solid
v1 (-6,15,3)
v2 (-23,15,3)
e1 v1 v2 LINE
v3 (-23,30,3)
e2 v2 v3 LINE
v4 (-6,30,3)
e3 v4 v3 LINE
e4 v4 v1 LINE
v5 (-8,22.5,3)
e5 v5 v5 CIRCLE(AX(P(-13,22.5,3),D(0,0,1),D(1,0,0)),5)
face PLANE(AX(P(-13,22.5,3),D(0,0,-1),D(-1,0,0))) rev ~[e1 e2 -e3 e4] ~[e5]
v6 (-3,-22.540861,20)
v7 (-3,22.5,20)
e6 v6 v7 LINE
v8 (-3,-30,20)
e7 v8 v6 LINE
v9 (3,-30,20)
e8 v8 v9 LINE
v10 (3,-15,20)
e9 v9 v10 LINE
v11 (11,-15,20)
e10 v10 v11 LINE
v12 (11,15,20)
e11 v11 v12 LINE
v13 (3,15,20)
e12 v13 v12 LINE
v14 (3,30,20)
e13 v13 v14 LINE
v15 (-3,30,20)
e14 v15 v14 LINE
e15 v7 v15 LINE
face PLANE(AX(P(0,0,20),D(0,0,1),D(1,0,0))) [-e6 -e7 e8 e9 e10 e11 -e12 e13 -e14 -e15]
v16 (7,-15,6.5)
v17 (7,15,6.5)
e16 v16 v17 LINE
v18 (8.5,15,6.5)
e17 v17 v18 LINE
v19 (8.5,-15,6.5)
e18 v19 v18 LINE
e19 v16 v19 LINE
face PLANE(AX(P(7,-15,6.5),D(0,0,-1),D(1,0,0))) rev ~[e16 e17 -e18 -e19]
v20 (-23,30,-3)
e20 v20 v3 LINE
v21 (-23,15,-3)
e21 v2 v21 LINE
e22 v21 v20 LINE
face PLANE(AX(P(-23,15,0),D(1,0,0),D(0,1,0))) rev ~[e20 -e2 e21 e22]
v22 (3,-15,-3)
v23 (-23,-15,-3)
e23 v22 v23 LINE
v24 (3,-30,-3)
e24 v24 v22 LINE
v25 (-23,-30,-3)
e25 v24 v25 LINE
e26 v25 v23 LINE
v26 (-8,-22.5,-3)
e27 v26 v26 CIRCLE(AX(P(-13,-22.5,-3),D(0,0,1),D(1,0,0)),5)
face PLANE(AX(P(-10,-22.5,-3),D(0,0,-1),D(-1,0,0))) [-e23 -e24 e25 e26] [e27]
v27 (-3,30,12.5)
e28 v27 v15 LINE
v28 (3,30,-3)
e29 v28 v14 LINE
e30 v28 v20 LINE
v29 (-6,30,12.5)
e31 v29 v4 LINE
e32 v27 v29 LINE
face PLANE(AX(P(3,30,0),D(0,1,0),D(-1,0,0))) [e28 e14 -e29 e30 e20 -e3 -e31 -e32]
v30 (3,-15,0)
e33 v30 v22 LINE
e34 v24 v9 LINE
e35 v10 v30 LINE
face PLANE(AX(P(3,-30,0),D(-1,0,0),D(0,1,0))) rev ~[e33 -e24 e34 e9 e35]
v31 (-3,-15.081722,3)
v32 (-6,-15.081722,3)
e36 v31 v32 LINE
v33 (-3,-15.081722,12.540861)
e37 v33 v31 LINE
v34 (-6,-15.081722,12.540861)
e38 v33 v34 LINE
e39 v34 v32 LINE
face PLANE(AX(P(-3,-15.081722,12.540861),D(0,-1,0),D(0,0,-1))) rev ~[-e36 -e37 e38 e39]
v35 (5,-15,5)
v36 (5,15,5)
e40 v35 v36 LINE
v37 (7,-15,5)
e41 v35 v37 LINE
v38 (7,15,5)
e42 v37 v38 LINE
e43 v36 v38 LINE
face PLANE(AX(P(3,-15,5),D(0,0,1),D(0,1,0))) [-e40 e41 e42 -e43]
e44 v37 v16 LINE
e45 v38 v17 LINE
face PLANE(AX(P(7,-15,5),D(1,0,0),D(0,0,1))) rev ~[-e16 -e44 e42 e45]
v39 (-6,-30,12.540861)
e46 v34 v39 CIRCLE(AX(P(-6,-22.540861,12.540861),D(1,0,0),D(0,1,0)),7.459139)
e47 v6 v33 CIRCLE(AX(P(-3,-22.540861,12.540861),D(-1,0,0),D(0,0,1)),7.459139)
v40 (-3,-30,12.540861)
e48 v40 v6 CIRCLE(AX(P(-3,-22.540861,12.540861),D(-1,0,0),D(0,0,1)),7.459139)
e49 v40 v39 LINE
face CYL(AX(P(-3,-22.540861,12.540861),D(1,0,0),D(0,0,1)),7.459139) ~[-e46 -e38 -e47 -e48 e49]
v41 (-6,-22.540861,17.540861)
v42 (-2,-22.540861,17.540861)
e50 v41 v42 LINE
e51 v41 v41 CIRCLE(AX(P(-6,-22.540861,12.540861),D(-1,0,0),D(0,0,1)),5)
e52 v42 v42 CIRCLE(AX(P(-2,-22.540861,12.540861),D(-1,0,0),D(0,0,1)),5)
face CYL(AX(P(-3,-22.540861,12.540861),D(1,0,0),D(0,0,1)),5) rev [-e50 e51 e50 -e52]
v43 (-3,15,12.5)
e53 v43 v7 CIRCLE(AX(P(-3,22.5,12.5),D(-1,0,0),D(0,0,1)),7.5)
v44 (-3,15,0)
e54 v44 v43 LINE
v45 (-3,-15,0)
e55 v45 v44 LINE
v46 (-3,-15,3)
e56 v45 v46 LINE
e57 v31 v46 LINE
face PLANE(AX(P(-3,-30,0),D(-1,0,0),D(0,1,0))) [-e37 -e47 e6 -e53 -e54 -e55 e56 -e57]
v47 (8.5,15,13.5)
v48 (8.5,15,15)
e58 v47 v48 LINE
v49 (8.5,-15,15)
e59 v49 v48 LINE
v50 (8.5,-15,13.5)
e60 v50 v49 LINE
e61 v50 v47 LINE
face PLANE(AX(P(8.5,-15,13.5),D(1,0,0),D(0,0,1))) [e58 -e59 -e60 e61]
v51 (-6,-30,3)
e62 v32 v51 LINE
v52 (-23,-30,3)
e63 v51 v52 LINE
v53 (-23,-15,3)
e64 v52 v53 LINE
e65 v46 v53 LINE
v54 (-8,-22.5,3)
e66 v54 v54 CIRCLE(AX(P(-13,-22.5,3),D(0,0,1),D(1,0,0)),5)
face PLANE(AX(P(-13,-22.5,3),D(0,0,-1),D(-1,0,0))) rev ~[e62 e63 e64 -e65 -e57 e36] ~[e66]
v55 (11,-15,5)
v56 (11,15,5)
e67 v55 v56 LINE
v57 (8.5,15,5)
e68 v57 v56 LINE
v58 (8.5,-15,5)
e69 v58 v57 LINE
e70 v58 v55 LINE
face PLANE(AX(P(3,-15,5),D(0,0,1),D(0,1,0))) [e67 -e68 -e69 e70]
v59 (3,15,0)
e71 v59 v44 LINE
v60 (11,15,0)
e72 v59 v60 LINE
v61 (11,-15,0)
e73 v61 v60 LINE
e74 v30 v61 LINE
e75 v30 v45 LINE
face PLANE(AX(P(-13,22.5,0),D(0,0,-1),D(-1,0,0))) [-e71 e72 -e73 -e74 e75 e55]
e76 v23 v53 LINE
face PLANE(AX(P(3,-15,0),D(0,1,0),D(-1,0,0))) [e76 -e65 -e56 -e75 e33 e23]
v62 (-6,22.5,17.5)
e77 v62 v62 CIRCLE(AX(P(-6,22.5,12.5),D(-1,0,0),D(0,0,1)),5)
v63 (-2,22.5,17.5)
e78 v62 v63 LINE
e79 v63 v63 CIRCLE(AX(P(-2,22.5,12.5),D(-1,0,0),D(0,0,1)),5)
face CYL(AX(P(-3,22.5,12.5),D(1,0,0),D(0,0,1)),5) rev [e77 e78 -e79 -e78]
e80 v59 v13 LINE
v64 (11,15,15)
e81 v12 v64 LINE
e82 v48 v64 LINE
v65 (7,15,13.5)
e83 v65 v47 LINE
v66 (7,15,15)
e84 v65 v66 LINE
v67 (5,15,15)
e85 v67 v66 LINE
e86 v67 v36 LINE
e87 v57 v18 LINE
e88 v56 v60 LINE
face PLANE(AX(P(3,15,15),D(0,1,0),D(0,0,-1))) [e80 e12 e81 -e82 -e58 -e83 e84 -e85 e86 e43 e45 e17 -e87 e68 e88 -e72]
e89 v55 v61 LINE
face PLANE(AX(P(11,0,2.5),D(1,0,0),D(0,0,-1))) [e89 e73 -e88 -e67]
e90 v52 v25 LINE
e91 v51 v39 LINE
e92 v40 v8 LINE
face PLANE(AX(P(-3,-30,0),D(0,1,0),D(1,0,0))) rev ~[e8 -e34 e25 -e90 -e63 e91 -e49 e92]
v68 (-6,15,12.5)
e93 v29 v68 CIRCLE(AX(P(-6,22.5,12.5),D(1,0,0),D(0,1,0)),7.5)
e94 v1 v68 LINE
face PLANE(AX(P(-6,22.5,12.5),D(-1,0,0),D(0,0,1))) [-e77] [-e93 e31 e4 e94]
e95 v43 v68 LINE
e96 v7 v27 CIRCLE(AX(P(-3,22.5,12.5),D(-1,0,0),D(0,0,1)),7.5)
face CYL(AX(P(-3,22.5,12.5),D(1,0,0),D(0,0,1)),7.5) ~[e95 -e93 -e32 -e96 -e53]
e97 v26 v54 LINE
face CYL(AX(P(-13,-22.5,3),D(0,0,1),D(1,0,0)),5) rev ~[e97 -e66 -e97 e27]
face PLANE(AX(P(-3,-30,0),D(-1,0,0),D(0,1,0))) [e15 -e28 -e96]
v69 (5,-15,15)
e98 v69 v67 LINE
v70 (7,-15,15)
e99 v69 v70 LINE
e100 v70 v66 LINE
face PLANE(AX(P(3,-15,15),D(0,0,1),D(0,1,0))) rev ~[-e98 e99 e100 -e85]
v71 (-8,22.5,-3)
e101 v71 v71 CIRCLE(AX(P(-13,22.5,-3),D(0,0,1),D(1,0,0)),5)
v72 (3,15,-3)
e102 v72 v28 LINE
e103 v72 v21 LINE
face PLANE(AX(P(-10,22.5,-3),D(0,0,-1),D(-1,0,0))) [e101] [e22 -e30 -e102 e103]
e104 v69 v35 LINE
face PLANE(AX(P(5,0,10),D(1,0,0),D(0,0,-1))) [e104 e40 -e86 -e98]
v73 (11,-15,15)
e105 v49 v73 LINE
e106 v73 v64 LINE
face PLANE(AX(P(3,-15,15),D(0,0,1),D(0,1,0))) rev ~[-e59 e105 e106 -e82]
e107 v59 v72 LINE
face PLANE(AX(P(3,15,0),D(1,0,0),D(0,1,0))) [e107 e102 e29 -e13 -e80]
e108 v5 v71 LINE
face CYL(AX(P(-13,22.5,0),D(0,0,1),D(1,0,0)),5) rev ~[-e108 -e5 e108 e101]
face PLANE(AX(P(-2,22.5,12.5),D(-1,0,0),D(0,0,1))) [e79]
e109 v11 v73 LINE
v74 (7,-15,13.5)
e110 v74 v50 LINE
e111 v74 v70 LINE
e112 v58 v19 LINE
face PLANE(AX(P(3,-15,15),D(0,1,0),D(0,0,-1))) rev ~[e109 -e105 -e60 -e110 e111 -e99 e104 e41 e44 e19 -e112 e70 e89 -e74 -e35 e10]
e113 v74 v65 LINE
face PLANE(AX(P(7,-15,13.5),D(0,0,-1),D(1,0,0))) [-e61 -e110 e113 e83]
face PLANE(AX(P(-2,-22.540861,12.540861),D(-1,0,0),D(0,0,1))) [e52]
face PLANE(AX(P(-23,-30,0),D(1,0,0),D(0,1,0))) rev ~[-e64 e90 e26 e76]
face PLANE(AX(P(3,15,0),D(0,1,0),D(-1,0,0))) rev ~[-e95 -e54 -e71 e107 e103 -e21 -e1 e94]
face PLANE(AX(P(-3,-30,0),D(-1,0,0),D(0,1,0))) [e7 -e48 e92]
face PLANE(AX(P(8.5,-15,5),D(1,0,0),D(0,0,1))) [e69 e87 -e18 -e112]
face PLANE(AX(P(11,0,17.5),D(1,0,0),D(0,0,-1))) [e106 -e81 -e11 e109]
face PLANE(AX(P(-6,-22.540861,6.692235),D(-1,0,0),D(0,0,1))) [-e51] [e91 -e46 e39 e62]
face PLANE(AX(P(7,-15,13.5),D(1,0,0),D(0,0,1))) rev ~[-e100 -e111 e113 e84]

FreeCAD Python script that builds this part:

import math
import FreeCAD as App
import Part
import Sketcher


def add_polygon(sketch, points):
    """Adds a closed chain of lines whose ends are joined by coincident constraints."""
    first, n = sketch.GeometryCount, len(points)
    for a, b in zip(points, points[1:] + points[:1]):
        sketch.addGeometry(Part.LineSegment(App.Vector(*a, 0), App.Vector(*b, 0)), False)
    for i in range(n):
        sketch.addConstraint(Sketcher.Constraint("Coincident", first + i, 2, first + (i + 1) % n, 1))

doc = App.newDocument("Part")
body = doc.addObject("PartDesign::Body", "Body")

sketch1 = body.newObject("Sketcher::SketchObject", "Sketch")
sketch1.AttachmentSupport = (doc.getObject("XY_Plane"), [""])
sketch1.MapMode = "FlatFace"
add_polygon(sketch1, [(-3, 30), (-3, -30), (3, -30), (3, 30)])
sketch1.addConstraint(Sketcher.Constraint("Vertical", 0))
sketch1.addConstraint(Sketcher.Constraint("Horizontal", 1))
sketch1.addConstraint(Sketcher.Constraint("Vertical", 2))
sketch1.addConstraint(Sketcher.Constraint("Horizontal", 3))
sketch1.addConstraint(Sketcher.Constraint("Symmetric", 0, 2, 2, 2, -1, 1))
sketch1.addConstraint(Sketcher.Constraint("DistanceX", 1, 1, 1, 2, 6.0))
sketch1.addConstraint(Sketcher.Constraint("DistanceY", 0, 2, 0, 1, 60.0))
pad1 = body.newObject("PartDesign::Pad", "Pad")
pad1.Profile = sketch1
pad1.Length = 20

sketch2 = body.newObject("Sketcher::SketchObject", "Sketch001")
sketch2.AttachmentSupport = (doc.getObject("YZ_Plane"), [""])
sketch2.MapMode = "FlatFace"
sketch2.AttachmentOffset = App.Placement(App.Vector(0, 0, 3), App.Rotation())
add_polygon(sketch2, [(15, 20), (-15, 20), (-15, 15), (15, 15)])
add_polygon(sketch2, [(15, 5), (-15, 5), (-15, 0), (15, 0)])
sketch2.addConstraint(Sketcher.Constraint("Horizontal", 0))
sketch2.addConstraint(Sketcher.Constraint("Vertical", 1))
sketch2.addConstraint(Sketcher.Constraint("Horizontal", 2))
sketch2.addConstraint(Sketcher.Constraint("Vertical", 3))
sketch2.addConstraint(Sketcher.Constraint("Horizontal", 4))
sketch2.addConstraint(Sketcher.Constraint("Vertical", 5))
sketch2.addConstraint(Sketcher.Constraint("Horizontal", 6))
sketch2.addConstraint(Sketcher.Constraint("Vertical", 7))
sketch2.addConstraint(Sketcher.Constraint("Symmetric", 5, 2, 6, 2, -1, 1))
sketch2.addConstraint(Sketcher.Constraint("Vertical", 1, 2, 4, 2))
sketch2.addConstraint(Sketcher.Constraint("Vertical", 3, 2, 6, 2))
sketch2.addConstraint(Sketcher.Constraint("Equal", 3, 5))
sketch2.addConstraint(Sketcher.Constraint("DistanceX", 0, 2, 0, 1, 30.0))
sketch2.addConstraint(Sketcher.Constraint("DistanceY", 1, 2, 1, 1, 5.0))
sketch2.addConstraint(Sketcher.Constraint("DistanceY", -1, 1, 0, 2, 20.0))
pad2 = body.newObject("PartDesign::Pad", "Pad001")
pad2.Profile = sketch2
pad2.Length = 8

sketch3 = body.newObject("Sketcher::SketchObject", "Sketch002")
sketch3.AttachmentSupport = (doc.getObject("YZ_Plane"), [""])
sketch3.MapMode = "FlatFace"
sketch3.AttachmentOffset = App.Placement(App.Vector(0, 0, 3), App.Rotation())
add_polygon(sketch3, [(15, 15), (-15, 15), (-15, 5), (15, 5)])
sketch3.addConstraint(Sketcher.Constraint("Horizontal", 0))
sketch3.addConstraint(Sketcher.Constraint("Vertical", 1))
sketch3.addConstraint(Sketcher.Constraint("Horizontal", 2))
sketch3.addConstraint(Sketcher.Constraint("Vertical", 3))
sketch3.addConstraint(Sketcher.Constraint("DistanceX", 0, 2, 0, 1, 30.0))
sketch3.addConstraint(Sketcher.Constraint("DistanceY", 1, 2, 1, 1, 10.0))
sketch3.addConstraint(Sketcher.Constraint("DistanceX", 0, 2, -1, 1, 15.0))
sketch3.addConstraint(Sketcher.Constraint("DistanceY", -1, 1, 0, 2, 15.0))
pad3 = body.newObject("PartDesign::Pad", "Pad002")
pad3.Profile = sketch3
pad3.Length = 2

sketch4 = body.newObject("Sketcher::SketchObject", "Sketch003")
sketch4.AttachmentSupport = (doc.getObject("XZ_Plane"), [""])
sketch4.MapMode = "FlatFace"
sketch4.AttachmentOffset = App.Placement(App.Vector(0, 0, 15), App.Rotation())
add_polygon(sketch4, [(7, 15), (7, 13.5), (8.5, 13.5), (8.5, 15)])
add_polygon(sketch4, [(7, 6.5), (7, 5), (8.5, 5), (8.5, 6.5)])
sketch4.addConstraint(Sketcher.Constraint("Vertical", 0))
sketch4.addConstraint(Sketcher.Constraint("Horizontal", 1))
sketch4.addConstraint(Sketcher.Constraint("Vertical", 2))
sketch4.addConstraint(Sketcher.Constraint("Horizontal", 3))
sketch4.addConstraint(Sketcher.Constraint("Vertical", 4))
sketch4.addConstraint(Sketcher.Constraint("Horizontal", 5))
sketch4.addConstraint(Sketcher.Constraint("Vertical", 6))
sketch4.addConstraint(Sketcher.Constraint("Horizontal", 7))
sketch4.addConstraint(Sketcher.Constraint("Vertical", 3, 2, 4, 2))
sketch4.addConstraint(Sketcher.Constraint("Vertical", 2, 2, 5, 2))
sketch4.addConstraint(Sketcher.Constraint("Equal", 7, 0))
sketch4.addConstraint(Sketcher.Constraint("Equal", 2, 4))
sketch4.addConstraint(Sketcher.Constraint("DistanceX", 1, 1, 1, 2, 1.5))
sketch4.addConstraint(Sketcher.Constraint("DistanceX", -1, 1, 0, 2, 7.0))
sketch4.addConstraint(Sketcher.Constraint("DistanceY", -1, 1, 2, 2, 15.0))
sketch4.addConstraint(Sketcher.Constraint("DistanceY", -1, 1, 4, 2, 5.0))
pad4 = body.newObject("PartDesign::Pad", "Pad003")
pad4.Profile = sketch4
pad4.Length = 30
pad4.Reversed = True

sketch5 = body.newObject("Sketcher::SketchObject", "Sketch004")
sketch5.AttachmentSupport = (doc.getObject("XY_Plane"), [""])
sketch5.MapMode = "FlatFace"
add_polygon(sketch5, [(-3, 30), (-3, 15), (-23, 15), (-23, 30)])
add_polygon(sketch5, [(-3, -15), (-3, -30), (-23, -30), (-23, -15)])
sketch5.addConstraint(Sketcher.Constraint("Vertical", 0))
sketch5.addConstraint(Sketcher.Constraint("Horizontal", 1))
sketch5.addConstraint(Sketcher.Constraint("Vertical", 2))
sketch5.addConstraint(Sketcher.Constraint("Horizontal", 3))
sketch5.addConstraint(Sketcher.Constraint("Vertical", 4))
sketch5.addConstraint(Sketcher.Constraint("Horizontal", 5))
sketch5.addConstraint(Sketcher.Constraint("Vertical", 6))
sketch5.addConstraint(Sketcher.Constraint("Horizontal", 7))
sketch5.addConstraint(Sketcher.Constraint("Symmetric", 3, 2, 4, 2, -1))
sketch5.addConstraint(Sketcher.Constraint("Symmetric", 1, 2, 6, 2, -1))
sketch5.addConstraint(Sketcher.Constraint("DistanceX", 1, 2, 1, 1, 20.0))
sketch5.addConstraint(Sketcher.Constraint("DistanceY", 0, 2, 0, 1, 15.0))
sketch5.addConstraint(Sketcher.Constraint("DistanceX", 0, 2, -1, 1, 3.0))
sketch5.addConstraint(Sketcher.Constraint("DistanceY", -1, 1, 0, 2, 15.0))
pad5 = body.newObject("PartDesign::Pad", "Pad004")
pad5.Profile = sketch5
pad5.Length = 3

sketch6 = body.newObject("Sketcher::SketchObject", "Sketch005")
sketch6.AttachmentSupport = (doc.getObject("XY_Plane"), [""])
sketch6.MapMode = "FlatFace"
sketch6.AttachmentOffset = App.Placement(App.Vector(0, 0, 3), App.Rotation())
sketch6.addGeometry(Part.Circle(App.Vector(-13, -22.5, 0), App.Vector(0, 0, 1), 5), False)
sketch6.addGeometry(Part.Circle(App.Vector(-13, 22.5, 0), App.Vector(0, 0, 1), 5), False)
sketch6.addConstraint(Sketcher.Constraint("Equal", 0, 1))
sketch6.addConstraint(Sketcher.Constraint("Symmetric", 0, 3, 1, 3, -1))
sketch6.addConstraint(Sketcher.Constraint("Diameter", 0, 10.0))
sketch6.addConstraint(Sketcher.Constraint("DistanceX", 0, 3, -1, 1, 13.0))
sketch6.addConstraint(Sketcher.Constraint("DistanceY", 0, 3, 1, 3, 45.0))
pocket1 = body.newObject("PartDesign::Pocket", "Pocket")
pocket1.Profile = sketch6
pocket1.Type = "ThroughAll"

sketch7 = body.newObject("Sketcher::SketchObject", "Sketch006")
sketch7.AttachmentSupport = (doc.getObject("YZ_Plane"), [""])
sketch7.MapMode = "FlatFace"
sketch7.AttachmentOffset = App.Placement(App.Vector(0, 0, -3), App.Rotation())
sketch7.addGeometry(Part.LineSegment(App.Vector(30, 12.5, 0), App.Vector(30, 3, 0)), False)
sketch7.addGeometry(Part.LineSegment(App.Vector(30, 3, 0), App.Vector(15, 3, 0)), False)
sketch7.addGeometry(Part.LineSegment(App.Vector(15, 3, 0), App.Vector(15, 12.5, 0)), False)
sketch7.addGeometry(Part.ArcOfCircle(Part.Circle(App.Vector(22.5, 12.5, 0), App.Vector(0, 0, 1), 7.5), math.radians(0), math.radians(180)), False)
sketch7.addGeometry(Part.Circle(App.Vector(22.5, 12.5, 0), App.Vector(0, 0, 1), 5), False)
sketch7.addGeometry(Part.LineSegment(App.Vector(-15.081722, 12.540861, 0), App.Vector(-15.081722, 3, 0)), False)
sketch7.addGeometry(Part.LineSegment(App.Vector(-15.081722, 3, 0), App.Vector(-30, 3, 0)), False)
sketch7.addGeometry(Part.LineSegment(App.Vector(-30, 3, 0), App.Vector(-30, 12.540861, 0)), False)
sketch7.addGeometry(Part.ArcOfCircle(Part.Circle(App.Vector(-22.540861, 12.540861, 0), App.Vector(0, 0, 1), 7.459139), math.radians(0), math.radians(180)), False)
sketch7.addGeometry(Part.Circle(App.Vector(-22.540861, 12.540861, 0), App.Vector(0, 0, 1), 5), False)
sketch7.addConstraint(Sketcher.Constraint("Coincident", 0, 2, 1, 1))
sketch7.addConstraint(Sketcher.Constraint("Coincident", 1, 2, 2, 1))
sketch7.addConstraint(Sketcher.Constraint("Tangent", 2, 2, 3, 2))
sketch7.addConstraint(Sketcher.Constraint("Tangent", 3, 1, 0, 1))
sketch7.addConstraint(Sketcher.Constraint("Coincident", 5, 2, 6, 1))
sketch7.addConstraint(Sketcher.Constraint("Coincident", 6, 2, 7, 1))
sketch7.addConstraint(Sketcher.Constraint("Tangent", 7, 2, 8, 2))
sketch7.addConstraint(Sketcher.Constraint("Tangent", 8, 1, 5, 1))
sketch7.addConstraint(Sketcher.Constraint("Vertical", 0))
sketch7.addConstraint(Sketcher.Constraint("Horizontal", 1))
sketch7.addConstraint(Sketcher.Constraint("Vertical", 2))
sketch7.addConstraint(Sketcher.Constraint("Vertical", 5))
sketch7.addConstraint(Sketcher.Constraint("Horizontal", 6))
sketch7.addConstraint(Sketcher.Constraint("Vertical", 7))
sketch7.addConstraint(Sketcher.Constraint("Coincident", 4, 3, 3, 3))
sketch7.addConstraint(Sketcher.Constraint("Coincident", 9, 3, 8, 3))
sketch7.addConstraint(Sketcher.Constraint("Equal", 4, 9))
sketch7.addConstraint(Sketcher.Constraint("Symmetric", 0, 2, 6, 2, -2))
sketch7.addConstraint(Sketcher.Constraint("Diameter", 4, 10.0))
sketch7.addConstraint(Sketcher.Constraint("Radius", 3, 7.5))
sketch7.addConstraint(Sketcher.Constraint("DistanceY", 0, 2, 0, 1, 9.5))
sketch7.addConstraint(Sketcher.Constraint("DistanceX", -1, 1, 0, 2, 30.0))
sketch7.addConstraint(Sketcher.Constraint("DistanceY", -1, 1, 0, 2, 3.0))
sketch7.addConstraint(Sketcher.Constraint("Radius", 8, 7.459139))
sketch7.addConstraint(Sketcher.Constraint("DistanceY", 5, 2, 5, 1, 9.540861))
pad6 = body.newObject("PartDesign::Pad", "Pad005")
pad6.Profile = sketch7
pad6.Length = 3
pad6.Reversed = True

sketch8 = body.newObject("Sketcher::SketchObject", "Sketch007")
sketch8.AttachmentSupport = (doc.getObject("YZ_Plane"), [""])
sketch8.MapMode = "FlatFace"
sketch8.AttachmentOffset = App.Placement(App.Vector(0, 0, -2), App.Rotation())
sketch8.addGeometry(Part.Circle(App.Vector(22.5, 12.5, 0), App.Vector(0, 0, 1), 5), False)
sketch8.addGeometry(Part.Circle(App.Vector(-22.540861, 12.540861, 0), App.Vector(0, 0, 1), 5), False)
sketch8.addConstraint(Sketcher.Constraint("Equal", 0, 1))
sketch8.addConstraint(Sketcher.Constraint("Diameter", 0, 10.0))
sketch8.addConstraint(Sketcher.Constraint("DistanceX", -1, 1, 0, 3, 22.5))
sketch8.addConstraint(Sketcher.Constraint("DistanceY", -1, 1, 0, 3, 12.5))
sketch8.addConstraint(Sketcher.Constraint("DistanceX", 1, 3, -1, 1, 22.540861))
sketch8.addConstraint(Sketcher.Constraint("DistanceY", -1, 1, 1, 3, 12.540861))
pocket2 = body.newObject("PartDesign::Pocket", "Pocket001")
pocket2.Profile = sketch8
pocket2.Length = 1

sketch9 = body.newObject("Sketcher::SketchObject", "Sketch008")
sketch9.AttachmentSupport = (doc.getObject("XY_Plane"), [""])
sketch9.MapMode = "FlatFace"
add_polygon(sketch9, [(3, 30), (3, 15), (-23, 15), (-23, 30)])
add_polygon(sketch9, [(3, -15), (3, -30), (-23, -30), (-23, -15)])
sketch9.addConstraint(Sketcher.Constraint("Vertical", 0))
sketch9.addConstraint(Sketcher.Constraint("Horizontal", 1))
sketch9.addConstraint(Sketcher.Constraint("Vertical", 2))
sketch9.addConstraint(Sketcher.Constraint("Horizontal", 3))
sketch9.addConstraint(Sketcher.Constraint("Vertical", 4))
sketch9.addConstraint(Sketcher.Constraint("Horizontal", 5))
sketch9.addConstraint(Sketcher.Constraint("Vertical", 6))
sketch9.addConstraint(Sketcher.Constraint("Horizontal", 7))
sketch9.addConstraint(Sketcher.Constraint("Symmetric", 3, 2, 4, 2, -1))
sketch9.addConstraint(Sketcher.Constraint("Symmetric", 1, 2, 6, 2, -1))
sketch9.addConstraint(Sketcher.Constraint("DistanceX", 1, 2, 1, 1, 26.0))
sketch9.addConstraint(Sketcher.Constraint("DistanceY", 0, 2, 0, 1, 15.0))
sketch9.addConstraint(Sketcher.Constraint("DistanceX", -1, 1, 0, 2, 3.0))
sketch9.addConstraint(Sketcher.Constraint("DistanceY", -1, 1, 0, 2, 15.0))
pad7 = body.newObject("PartDesign::Pad", "Pad006")
pad7.Profile = sketch9
pad7.Length = 3
pad7.Reversed = True

sketch10 = body.newObject("Sketcher::SketchObject", "Sketch009")
sketch10.AttachmentSupport = (doc.getObject("XY_Plane"), [""])
sketch10.MapMode = "FlatFace"
sketch10.addGeometry(Part.Circle(App.Vector(-13, 22.5, 0), App.Vector(0, 0, 1), 5), False)
sketch10.addGeometry(Part.Circle(App.Vector(-13, -22.5, 0), App.Vector(0, 0, 1), 5), False)
sketch10.addConstraint(Sketcher.Constraint("Equal", 0, 1))
sketch10.addConstraint(Sketcher.Constraint("Symmetric", 0, 3, 1, 3, -1))
sketch10.addConstraint(Sketcher.Constraint("Diameter", 0, 10.0))
sketch10.addConstraint(Sketcher.Constraint("DistanceX", 0, 3, -1, 1, 13.0))
sketch10.addConstraint(Sketcher.Constraint("DistanceY", 1, 3, 0, 3, 45.0))
pocket3 = body.newObject("PartDesign::Pocket", "Pocket002")
pocket3.Profile = sketch10
pocket3.Length = 3

doc.recompute()
